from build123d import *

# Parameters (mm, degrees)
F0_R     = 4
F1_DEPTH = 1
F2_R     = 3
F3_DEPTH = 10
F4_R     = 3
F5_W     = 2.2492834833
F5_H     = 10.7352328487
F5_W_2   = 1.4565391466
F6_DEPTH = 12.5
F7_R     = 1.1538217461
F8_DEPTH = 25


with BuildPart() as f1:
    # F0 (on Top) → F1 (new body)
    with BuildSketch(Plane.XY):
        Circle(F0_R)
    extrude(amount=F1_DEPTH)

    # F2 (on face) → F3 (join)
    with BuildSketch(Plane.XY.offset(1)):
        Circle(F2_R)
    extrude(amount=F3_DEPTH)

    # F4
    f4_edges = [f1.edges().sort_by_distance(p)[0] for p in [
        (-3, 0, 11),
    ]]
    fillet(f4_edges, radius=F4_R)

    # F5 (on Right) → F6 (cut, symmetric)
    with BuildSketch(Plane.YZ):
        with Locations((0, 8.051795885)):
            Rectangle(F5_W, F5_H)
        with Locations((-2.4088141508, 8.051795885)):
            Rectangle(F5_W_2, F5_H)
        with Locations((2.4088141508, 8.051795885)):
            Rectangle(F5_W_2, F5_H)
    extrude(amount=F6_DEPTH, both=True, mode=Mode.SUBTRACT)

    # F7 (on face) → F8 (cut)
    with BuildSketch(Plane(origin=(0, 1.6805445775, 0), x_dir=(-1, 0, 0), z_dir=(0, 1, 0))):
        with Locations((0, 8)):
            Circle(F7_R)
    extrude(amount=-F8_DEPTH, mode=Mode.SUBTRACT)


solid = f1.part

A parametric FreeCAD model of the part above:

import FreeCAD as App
import Part
import Sketcher
from FreeCAD import Vector
Q = App.Units.Quantity


def edges_at(feature, points):
    """Names of the edges that pass closest to the given points."""
    edges = feature.Shape.Edges
    near = lambda p: min(range(len(edges)), key=lambda i: edges[i].distToShape(Part.Vertex(*p))[0])
    return sorted({f"Edge{near(p) + 1}" for p in points})


def add_polygon(sketch, points):
    """Adds a closed chain of lines whose ends are joined by coincident constraints."""
    first, n = sketch.GeometryCount, len(points)
    for a, b in zip(points, points[1:] + points[:1]):
        sketch.addGeometry(Part.LineSegment(App.Vector(*a, 0), App.Vector(*b, 0)), False)
    for i in range(n):
        sketch.addConstraint(Sketcher.Constraint("Coincident", first + i, 2, first + (i + 1) % n, 1))

doc = App.newDocument("Part")
body = doc.addObject("PartDesign::Body", "Body")

# Sketch on XY plane
sketch1 = body.newObject("Sketcher::SketchObject", "Sketch")
sketch1.AttachmentSupport = (doc.getObject("XY_Plane"), [""])
sketch1.MapMode = "FlatFace"
sketch1.addGeometry(Part.Circle(Vector(0, 0, 0), Vector(0, 0, 1), 4), False)
sketch1.addConstraint([
    Sketcher.Constraint("Coincident", 0, 3, -1, 1),
    Sketcher.Constraint("Diameter", 0, Q("8 mm")),
])
pad1 = body.newObject("PartDesign::Pad", "Pad")
pad1.Profile = sketch1
pad1.Length = 1

# Sketch on XY plane
sketch2 = body.newObject("Sketcher::SketchObject", "Sketch001")
sketch2.AttachmentSupport = (doc.getObject("XY_Plane"), [""])
sketch2.MapMode = "FlatFace"
sketch2.AttachmentOffset = App.Placement(Vector(0, 0, 1), App.Rotation())
sketch2.addGeometry(Part.Circle(Vector(0, 0, 0), Vector(0, 0, 1), 3), False)
sketch2.addConstraint([
    Sketcher.Constraint("Coincident", 0, 3, -1, 1),
    Sketcher.Constraint("Diameter", 0, Q("6 mm")),
])
pad2 = body.newObject("PartDesign::Pad", "Pad001")
pad2.Profile = sketch2
pad2.Length = 10
doc.recompute()

fillet = body.newObject("PartDesign::Fillet", "Fillet")
fillet.Base = (pad2, edges_at(pad2, [(-3, 0, 11)]))
fillet.Radius = 3

# Sketch on YZ plane
sketch3 = body.newObject("Sketcher::SketchObject", "Sketch002")
sketch3.AttachmentSupport = (doc.getObject("YZ_Plane"), [""])
sketch3.MapMode = "FlatFace"
add_polygon(sketch3, [(-1.124642, 13.419412), (-1.124642, 2.684179), (1.124642, 2.684179), (1.124642, 13.419412)])  # lines 0-3
add_polygon(sketch3, [(-3.137084, 13.419412), (-3.137084, 2.684179), (-1.680545, 2.684179), (-1.680545, 13.419412)])  # lines 4-7
add_polygon(sketch3, [(1.680545, 13.419412), (1.680545, 2.684179), (3.137084, 2.684179), (3.137084, 13.419412)])  # lines 8-11
sketch3.addConstraint([
    Sketcher.Constraint("Vertical", 0),
    Sketcher.Constraint("Horizontal", 1),
    Sketcher.Constraint("Vertical", 2),
    Sketcher.Constraint("Horizontal", 3),
    Sketcher.Constraint("Vertical", 4),
    Sketcher.Constraint("Horizontal", 5),
    Sketcher.Constraint("Vertical", 6),
    Sketcher.Constraint("Horizontal", 7),
    Sketcher.Constraint("Vertical", 8),
    Sketcher.Constraint("Horizontal", 9),
    Sketcher.Constraint("Vertical", 10),
    Sketcher.Constraint("Horizontal", 11),
    Sketcher.Constraint("Symmetric", 5, 2, 8, 2, -2),
    Sketcher.Constraint("Symmetric", 7, 2, 10, 2, -2),
    Sketcher.Constraint("Horizontal", 1, 2, 4, 2),
    Sketcher.Constraint("Horizontal", 3, 2, 6, 2),
    Sketcher.Constraint("DistanceX", 5, 1, 5, 2, Q("1.456539 mm")),
    Sketcher.Constraint("DistanceX", 1, 1, 1, 2, Q("2.249283 mm")),
    Sketcher.Constraint("DistanceY", 0, 2, 0, 1, Q("10.735233 mm")),
    Sketcher.Constraint("DistanceX", 0, 2, -1, 1, Q("1.124642 mm")),
    Sketcher.Constraint("DistanceY", -1, 1, 0, 2, Q("2.684179 mm")),
    Sketcher.Constraint("DistanceX", 4, 2, 0, 2, Q("2.012442 mm")),
])
pocket1 = body.newObject("PartDesign::Pocket", "Pocket")
pocket1.Profile = sketch3
pocket1.Length = 25
pocket1.Midplane = True

# Sketch on XZ plane
sketch4 = body.newObject("Sketcher::SketchObject", "Sketch003")
sketch4.AttachmentSupport = (doc.getObject("XZ_Plane"), [""])
sketch4.MapMode = "FlatFace"
sketch4.AttachmentOffset = App.Placement(Vector(0, 0, -1.680545), App.Rotation())
sketch4.addGeometry(Part.Circle(Vector(0, 8, 0), Vector(0, 0, 1), 1.153822), False)
sketch4.addConstraint([
    Sketcher.Constraint("PointOnObject", 0, 3, -2),
    Sketcher.Constraint("DistanceY", -1, 1, 0, 3, Q("8 mm")),
    Sketcher.Constraint("Diameter", 0, Q("2.307643 mm")),
])
pocket2 = body.newObject("PartDesign::Pocket", "Pocket001")
pocket2.Profile = sketch4
pocket2.Length = 25
pocket2.Reversed = True

doc.recompute()
